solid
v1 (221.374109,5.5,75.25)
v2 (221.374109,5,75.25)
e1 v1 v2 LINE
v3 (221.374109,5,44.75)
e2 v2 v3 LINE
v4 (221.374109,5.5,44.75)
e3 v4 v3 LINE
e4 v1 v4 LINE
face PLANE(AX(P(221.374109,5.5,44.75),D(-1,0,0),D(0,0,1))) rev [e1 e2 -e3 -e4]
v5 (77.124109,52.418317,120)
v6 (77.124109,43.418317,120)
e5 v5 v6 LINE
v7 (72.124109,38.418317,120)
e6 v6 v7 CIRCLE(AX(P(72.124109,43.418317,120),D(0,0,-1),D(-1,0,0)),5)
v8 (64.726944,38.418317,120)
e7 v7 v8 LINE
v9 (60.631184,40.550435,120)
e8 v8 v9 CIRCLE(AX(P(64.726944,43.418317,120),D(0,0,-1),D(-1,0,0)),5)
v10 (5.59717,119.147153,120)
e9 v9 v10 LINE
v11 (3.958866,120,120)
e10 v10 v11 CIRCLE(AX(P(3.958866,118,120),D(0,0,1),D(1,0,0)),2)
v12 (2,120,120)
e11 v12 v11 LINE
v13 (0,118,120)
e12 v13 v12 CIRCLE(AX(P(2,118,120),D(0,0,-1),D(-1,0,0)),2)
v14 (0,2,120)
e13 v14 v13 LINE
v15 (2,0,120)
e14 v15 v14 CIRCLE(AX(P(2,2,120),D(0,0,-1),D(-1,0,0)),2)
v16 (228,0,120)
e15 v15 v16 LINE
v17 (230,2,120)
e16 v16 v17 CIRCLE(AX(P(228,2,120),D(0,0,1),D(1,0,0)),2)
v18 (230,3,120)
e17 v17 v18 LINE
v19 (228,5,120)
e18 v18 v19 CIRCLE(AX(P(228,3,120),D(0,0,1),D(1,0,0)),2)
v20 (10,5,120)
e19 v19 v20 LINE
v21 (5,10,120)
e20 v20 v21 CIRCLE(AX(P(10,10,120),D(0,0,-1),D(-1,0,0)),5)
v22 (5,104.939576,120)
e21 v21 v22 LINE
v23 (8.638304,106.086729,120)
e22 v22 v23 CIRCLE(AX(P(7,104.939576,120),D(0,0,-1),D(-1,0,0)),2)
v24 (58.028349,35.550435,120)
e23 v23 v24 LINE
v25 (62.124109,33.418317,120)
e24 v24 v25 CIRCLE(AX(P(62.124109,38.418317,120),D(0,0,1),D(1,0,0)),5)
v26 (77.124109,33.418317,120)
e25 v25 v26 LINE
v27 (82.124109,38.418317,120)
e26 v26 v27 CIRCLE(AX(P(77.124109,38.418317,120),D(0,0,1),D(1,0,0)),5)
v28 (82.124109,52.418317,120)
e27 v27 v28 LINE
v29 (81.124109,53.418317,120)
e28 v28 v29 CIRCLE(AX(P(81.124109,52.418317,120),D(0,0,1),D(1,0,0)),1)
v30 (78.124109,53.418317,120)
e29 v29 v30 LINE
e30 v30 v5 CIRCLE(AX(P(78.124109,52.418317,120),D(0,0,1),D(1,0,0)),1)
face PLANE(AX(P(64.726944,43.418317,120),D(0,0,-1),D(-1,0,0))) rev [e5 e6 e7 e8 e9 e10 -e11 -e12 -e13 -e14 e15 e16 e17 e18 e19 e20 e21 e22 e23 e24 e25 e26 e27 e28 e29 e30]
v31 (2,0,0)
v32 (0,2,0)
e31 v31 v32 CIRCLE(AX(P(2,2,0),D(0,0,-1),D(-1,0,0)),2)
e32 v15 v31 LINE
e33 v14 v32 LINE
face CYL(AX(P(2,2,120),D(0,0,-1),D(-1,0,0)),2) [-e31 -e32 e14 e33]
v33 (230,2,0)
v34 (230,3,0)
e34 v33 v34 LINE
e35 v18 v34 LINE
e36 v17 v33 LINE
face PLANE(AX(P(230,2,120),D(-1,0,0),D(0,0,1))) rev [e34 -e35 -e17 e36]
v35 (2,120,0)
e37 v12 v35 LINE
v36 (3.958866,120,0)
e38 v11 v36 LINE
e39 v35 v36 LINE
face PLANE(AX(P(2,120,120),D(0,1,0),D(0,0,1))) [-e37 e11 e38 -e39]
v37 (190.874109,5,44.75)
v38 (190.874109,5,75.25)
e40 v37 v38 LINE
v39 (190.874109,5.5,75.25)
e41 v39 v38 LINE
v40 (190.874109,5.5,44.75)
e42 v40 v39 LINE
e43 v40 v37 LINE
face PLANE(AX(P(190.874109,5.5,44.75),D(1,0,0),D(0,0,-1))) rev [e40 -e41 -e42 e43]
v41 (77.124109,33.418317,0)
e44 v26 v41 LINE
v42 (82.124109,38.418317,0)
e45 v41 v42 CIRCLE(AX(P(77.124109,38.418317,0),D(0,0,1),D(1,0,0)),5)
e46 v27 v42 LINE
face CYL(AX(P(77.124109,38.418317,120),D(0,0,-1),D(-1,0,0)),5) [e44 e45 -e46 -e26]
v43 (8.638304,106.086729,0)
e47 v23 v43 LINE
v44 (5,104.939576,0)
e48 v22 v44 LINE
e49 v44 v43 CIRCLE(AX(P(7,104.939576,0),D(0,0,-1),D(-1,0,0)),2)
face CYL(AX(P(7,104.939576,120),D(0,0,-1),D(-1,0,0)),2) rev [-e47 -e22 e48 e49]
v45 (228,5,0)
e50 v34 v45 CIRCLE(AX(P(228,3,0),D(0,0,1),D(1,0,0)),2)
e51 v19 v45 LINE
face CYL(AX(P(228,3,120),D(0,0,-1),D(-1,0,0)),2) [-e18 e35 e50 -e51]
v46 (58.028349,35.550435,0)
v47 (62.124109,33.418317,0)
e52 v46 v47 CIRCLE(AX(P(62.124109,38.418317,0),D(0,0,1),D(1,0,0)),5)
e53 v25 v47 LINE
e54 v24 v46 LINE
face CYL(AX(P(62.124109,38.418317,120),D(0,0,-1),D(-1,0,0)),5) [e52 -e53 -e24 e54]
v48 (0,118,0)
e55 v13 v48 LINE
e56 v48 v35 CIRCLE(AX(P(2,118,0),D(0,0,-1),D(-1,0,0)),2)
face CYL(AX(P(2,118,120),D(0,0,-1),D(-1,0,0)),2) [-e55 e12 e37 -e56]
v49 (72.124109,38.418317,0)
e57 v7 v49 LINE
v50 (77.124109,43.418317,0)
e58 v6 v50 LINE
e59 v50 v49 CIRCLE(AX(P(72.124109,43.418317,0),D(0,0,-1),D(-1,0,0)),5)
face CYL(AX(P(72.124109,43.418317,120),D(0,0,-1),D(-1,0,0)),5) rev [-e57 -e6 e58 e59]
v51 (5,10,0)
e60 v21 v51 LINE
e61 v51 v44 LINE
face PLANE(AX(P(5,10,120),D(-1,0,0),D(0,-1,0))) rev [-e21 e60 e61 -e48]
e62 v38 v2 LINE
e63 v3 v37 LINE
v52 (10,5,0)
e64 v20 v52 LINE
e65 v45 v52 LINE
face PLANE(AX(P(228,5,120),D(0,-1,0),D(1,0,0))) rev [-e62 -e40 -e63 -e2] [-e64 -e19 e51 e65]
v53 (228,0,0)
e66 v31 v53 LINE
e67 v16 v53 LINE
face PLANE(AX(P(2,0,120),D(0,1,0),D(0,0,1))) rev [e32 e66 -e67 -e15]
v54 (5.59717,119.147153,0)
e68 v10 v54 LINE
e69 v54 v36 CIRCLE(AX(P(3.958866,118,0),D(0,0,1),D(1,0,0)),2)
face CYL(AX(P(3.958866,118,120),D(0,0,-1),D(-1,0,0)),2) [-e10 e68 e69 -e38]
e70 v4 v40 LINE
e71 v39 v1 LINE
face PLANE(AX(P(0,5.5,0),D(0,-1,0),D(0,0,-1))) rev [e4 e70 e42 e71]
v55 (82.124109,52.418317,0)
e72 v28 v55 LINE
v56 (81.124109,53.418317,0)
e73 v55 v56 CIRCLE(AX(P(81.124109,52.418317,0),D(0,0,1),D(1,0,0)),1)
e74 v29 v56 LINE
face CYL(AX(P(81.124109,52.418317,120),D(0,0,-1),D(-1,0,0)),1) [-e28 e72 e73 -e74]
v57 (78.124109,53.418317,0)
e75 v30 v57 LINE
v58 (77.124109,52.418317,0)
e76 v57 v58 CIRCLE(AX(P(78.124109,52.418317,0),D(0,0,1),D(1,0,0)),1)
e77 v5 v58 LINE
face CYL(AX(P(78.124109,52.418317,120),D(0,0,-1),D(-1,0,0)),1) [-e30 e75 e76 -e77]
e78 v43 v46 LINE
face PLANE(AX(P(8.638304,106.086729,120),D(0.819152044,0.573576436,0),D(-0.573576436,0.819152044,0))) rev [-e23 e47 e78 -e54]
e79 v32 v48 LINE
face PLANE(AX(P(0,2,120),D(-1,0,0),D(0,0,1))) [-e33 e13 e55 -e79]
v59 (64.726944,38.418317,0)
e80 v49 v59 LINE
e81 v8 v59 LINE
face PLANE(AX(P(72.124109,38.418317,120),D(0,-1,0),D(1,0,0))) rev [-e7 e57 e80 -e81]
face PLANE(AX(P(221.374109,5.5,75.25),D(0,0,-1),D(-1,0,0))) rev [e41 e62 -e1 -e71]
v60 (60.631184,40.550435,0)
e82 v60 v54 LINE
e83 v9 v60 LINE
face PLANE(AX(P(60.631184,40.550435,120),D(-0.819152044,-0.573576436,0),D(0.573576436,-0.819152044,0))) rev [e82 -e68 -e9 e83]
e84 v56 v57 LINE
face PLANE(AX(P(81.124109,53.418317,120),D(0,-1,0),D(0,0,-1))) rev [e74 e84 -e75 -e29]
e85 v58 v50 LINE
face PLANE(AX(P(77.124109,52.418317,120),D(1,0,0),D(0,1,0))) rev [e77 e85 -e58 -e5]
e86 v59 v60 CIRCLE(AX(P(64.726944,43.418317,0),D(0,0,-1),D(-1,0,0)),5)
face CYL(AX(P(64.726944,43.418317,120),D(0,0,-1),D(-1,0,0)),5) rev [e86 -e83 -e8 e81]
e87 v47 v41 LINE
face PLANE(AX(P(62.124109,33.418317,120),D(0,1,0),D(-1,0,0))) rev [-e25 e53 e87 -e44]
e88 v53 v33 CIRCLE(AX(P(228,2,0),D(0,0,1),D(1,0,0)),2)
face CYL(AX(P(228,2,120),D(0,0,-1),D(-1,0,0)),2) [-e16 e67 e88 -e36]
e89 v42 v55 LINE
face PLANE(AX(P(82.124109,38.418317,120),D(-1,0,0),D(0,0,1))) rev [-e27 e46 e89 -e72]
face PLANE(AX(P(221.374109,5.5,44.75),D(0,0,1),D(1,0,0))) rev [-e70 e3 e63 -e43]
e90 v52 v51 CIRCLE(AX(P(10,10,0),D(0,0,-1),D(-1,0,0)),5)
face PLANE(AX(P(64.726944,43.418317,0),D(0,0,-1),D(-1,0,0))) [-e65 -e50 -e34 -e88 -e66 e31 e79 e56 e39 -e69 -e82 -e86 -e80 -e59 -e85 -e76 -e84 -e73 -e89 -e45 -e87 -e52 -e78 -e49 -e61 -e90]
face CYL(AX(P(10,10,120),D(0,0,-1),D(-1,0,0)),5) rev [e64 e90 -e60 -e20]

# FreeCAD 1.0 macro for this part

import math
import FreeCAD as App
import Part
import Sketcher
from FreeCAD import Vector
Q = App.Units.Quantity


def add_polygon(sketch, points):
    """Adds a closed chain of lines whose ends are joined by coincident constraints."""
    first, n = sketch.GeometryCount, len(points)
    for a, b in zip(points, points[1:] + points[:1]):
        sketch.addGeometry(Part.LineSegment(App.Vector(*a, 0), App.Vector(*b, 0)), False)
    for i in range(n):
        sketch.addConstraint(Sketcher.Constraint("Coincident", first + i, 2, first + (i + 1) % n, 1))

doc = App.newDocument("Part")
body = doc.addObject("PartDesign::Body", "Body")

# Sketch on XY plane
sketch1 = doc.addObject("Sketcher::SketchObject", "Sketch")
body.addObject(sketch1)
sketch1.AttachmentSupport = (doc.XY_Plane, [""])
sketch1.MapMode = "FlatFace"
sketch1.addGeometry([
    Part.LineSegment(Vector(2, 0, 0), Vector(228, 0, 0)),  # 0
    Part.ArcOfCircle(Part.Circle(Vector(228, 2, 0), Vector(0, 0, 1), 2), math.radians(-90), math.radians(0)),  # 1
    Part.LineSegment(Vector(230, 2, 0), Vector(230, 3, 0)),  # 2
    Part.ArcOfCircle(Part.Circle(Vector(228, 3, 0), Vector(0, 0, 1), 2), math.radians(0), math.radians(90)),  # 3
    Part.LineSegment(Vector(228, 5, 0), Vector(10, 5, 0)),  # 4
    Part.ArcOfCircle(Part.Circle(Vector(10, 10, 0), Vector(0, 0, 1), 5), math.radians(180), math.radians(270)),  # 5
    Part.LineSegment(Vector(5, 10, 0), Vector(5, 104.9, 0)),  # 6
    Part.ArcOfCircle(Part.Circle(Vector(7, 104.9, 0), Vector(0, 0, 1), 2), math.radians(35), math.radians(180)),  # 7
    Part.LineSegment(Vector(8.6, 106.1, 0), Vector(58, 35.6, 0)),  # 8
    Part.ArcOfCircle(Part.Circle(Vector(62.1, 38.4, 0), Vector(0, 0, 1), 5), math.radians(-145), math.radians(-90)),  # 9
    Part.LineSegment(Vector(62.1, 33.4, 0), Vector(77.1, 33.4, 0)),  # 10
    Part.ArcOfCircle(Part.Circle(Vector(77.1, 38.4, 0), Vector(0, 0, 1), 5), math.radians(-90), math.radians(0)),  # 11
    Part.LineSegment(Vector(82.1, 38.4, 0), Vector(82.1, 52.4, 0)),  # 12
    Part.ArcOfCircle(Part.Circle(Vector(81.1, 52.4, 0), Vector(0, 0, 1), 1), math.radians(0), math.radians(90)),  # 13
    Part.LineSegment(Vector(81.1, 53.4, 0), Vector(78.1, 53.4, 0)),  # 14
    Part.ArcOfCircle(Part.Circle(Vector(78.1, 52.4, 0), Vector(0, 0, 1), 1), math.radians(90), math.radians(180)),  # 15
    Part.LineSegment(Vector(77.1, 52.4, 0), Vector(77.1, 43.4, 0)),  # 16
    Part.ArcOfCircle(Part.Circle(Vector(72.1, 43.4, 0), Vector(0, 0, 1), 5), math.radians(-90), math.radians(0)),  # 17
    Part.LineSegment(Vector(72.1, 38.4, 0), Vector(64.7, 38.4, 0)),  # 18
    Part.ArcOfCircle(Part.Circle(Vector(64.7, 43.4, 0), Vector(0, 0, 1), 5), math.radians(-145), math.radians(-90)),  # 19
    Part.LineSegment(Vector(60.6, 40.6, 0), Vector(5.6, 119.1, 0)),  # 20
    Part.ArcOfCircle(Part.Circle(Vector(4, 118, 0), Vector(0, 0, 1), 2), math.radians(35), math.radians(90)),  # 21
    Part.LineSegment(Vector(4, 120, 0), Vector(2, 120, 0)),  # 22
    Part.ArcOfCircle(Part.Circle(Vector(2, 118, 0), Vector(0, 0, 1), 2), math.radians(90), math.radians(180)),  # 23
    Part.LineSegment(Vector(0, 118, 0), Vector(0, 2, 0)),  # 24
    Part.ArcOfCircle(Part.Circle(Vector(2, 2, 0), Vector(0, 0, 1), 2), math.radians(-180), math.radians(-90)),  # 25
], False)
sketch1.addConstraint([
    Sketcher.Constraint("Tangent", 0, 2, 1, 1),
    Sketcher.Constraint("Tangent", 1, 2, 2, 1),
    Sketcher.Constraint("Tangent", 2, 2, 3, 1),
    Sketcher.Constraint("Tangent", 3, 2, 4, 1),
    Sketcher.Constraint("Tangent", 4, 2, 5, 2),
    Sketcher.Constraint("Tangent", 5, 1, 6, 1),
    Sketcher.Constraint("Tangent", 6, 2, 7, 2),
    Sketcher.Constraint("Tangent", 7, 1, 8, 1),
    Sketcher.Constraint("Tangent", 8, 2, 9, 1),
    Sketcher.Constraint("Tangent", 9, 2, 10, 1),
    Sketcher.Constraint("Tangent", 10, 2, 11, 1),
    Sketcher.Constraint("Tangent", 11, 2, 12, 1),
    Sketcher.Constraint("Tangent", 12, 2, 13, 1),
    Sketcher.Constraint("Tangent", 13, 2, 14, 1),
    Sketcher.Constraint("Tangent", 14, 2, 15, 1),
    Sketcher.Constraint("Tangent", 15, 2, 16, 1),
    Sketcher.Constraint("Tangent", 16, 2, 17, 2),
    Sketcher.Constraint("Tangent", 17, 1, 18, 1),
    Sketcher.Constraint("Tangent", 18, 2, 19, 2),
    Sketcher.Constraint("Tangent", 19, 1, 20, 1),
    Sketcher.Constraint("Tangent", 20, 2, 21, 1),
    Sketcher.Constraint("Tangent", 21, 2, 22, 1),
    Sketcher.Constraint("Tangent", 22, 2, 23, 1),
    Sketcher.Constraint("Tangent", 23, 2, 24, 1),
    Sketcher.Constraint("Tangent", 24, 2, 25, 1),
    Sketcher.Constraint("Tangent", 25, 2, 0, 1),
    Sketcher.Constraint("Horizontal", 0),
    Sketcher.Constraint("Vertical", 2),
    Sketcher.Constraint("Horizontal", 4),
    Sketcher.Constraint("Vertical", 6),
    Sketcher.Constraint("Horizontal", 10),
    Sketcher.Constraint("Vertical", 12),
    Sketcher.Constraint("Horizontal", 14),
    Sketcher.Constraint("Vertical", 16),
    Sketcher.Constraint("Horizontal", 18),
    Sketcher.Constraint("Horizontal", 22),
    Sketcher.Constraint("Vertical", 24),
    Sketcher.Constraint("Equal", 1, 3),
    Sketcher.Constraint("Equal", 3, 7),
    Sketcher.Constraint("Equal", 5, 9),
    Sketcher.Constraint("Equal", 9, 11),
    Sketcher.Constraint("Equal", 13, 15),
    Sketcher.Constraint("Equal", 11, 17),
    Sketcher.Constraint("Equal", 17, 19),
    Sketcher.Constraint("Equal", 7, 21),
    Sketcher.Constraint("Equal", 21, 23),
    Sketcher.Constraint("Equal", 23, 25),
    Sketcher.Constraint("PointOnObject", 0, 2, -1),
    Sketcher.Constraint("PointOnObject", 23, 2, -2),
    Sketcher.Constraint("Parallel", 8, 20),
    Sketcher.Constraint("Horizontal", 11, 2, 17, 1),
    Sketcher.Constraint("Vertical", 10, 2, 15, 2),
    Sketcher.Constraint("Radius", 1, 2.0),
    Sketcher.Constraint("Radius", 5, 5.0),
    Sketcher.Constraint("Radius", 13, 1.0),
    Sketcher.Constraint("DistanceX", 0, 1, 0, 2, 226.0),
    Sketcher.Constraint("DistanceX", 4, 2, 4, 1, 218.0),
    Sketcher.Constraint("DistanceX", 10, 1, 10, 2, 15.0),
    Sketcher.Constraint("DistanceY", 2, 1, 2, 2, 1.0),
    Sketcher.Constraint("DistanceY", 12, 1, 12, 2, 14.0),
    Sketcher.Constraint("DistanceY", 24, 2, 24, 1, 116.0),
    Sketcher.Constraint("Angle", 8, Q("-55 deg")),
    Sketcher.Constraint("DistanceX", 18, 2, 18, 1, 7.397165),
    Sketcher.Constraint("DistanceX", 22, 2, 22, 1, 1.958866),
    Sketcher.Constraint("DistanceX", -1, 1, 9, 3, 62.124109),
])
pad1 = doc.addObject("PartDesign::Pad", "Pad")
body.addObject(pad1)
pad1.Profile = sketch1
pad1.Length = 120

# Sketch on XZ plane
sketch2 = doc.addObject("Sketcher::SketchObject", "Sketch001")
body.addObject(sketch2)
sketch2.AttachmentSupport = (doc.XZ_Plane, [""])
sketch2.MapMode = "FlatFace"
add_polygon(sketch2, [(190, 45), (190, 75), (220, 75), (220, 45)])  # lines 0-3
sketch2.addConstraint([
    Sketcher.Constraint("Vertical", 0),
    Sketcher.Constraint("Horizontal", 1),
    Sketcher.Constraint("Vertical", 2),
    Sketcher.Constraint("Horizontal", 3),
    Sketcher.Constraint("Equal", 3, 0),
    Sketcher.Constraint("DistanceX", 1, 1, 1, 2, 30.0),
    Sketcher.Constraint("DistanceX", -1, 1, 0, 2, 190.0),
    Sketcher.Constraint("DistanceY", -1, 1, 0, 2, 75.0),
])
pad2 = doc.addObject("PartDesign::Pad", "Pad001")
body.addObject(pad2)
pad2.Profile = sketch2
pad2.Length = 3
pad2.Reversed = True

# Sketch on XZ plane
sketch3 = doc.addObject("Sketcher::SketchObject", "Sketch002")
body.addObject(sketch3)
sketch3.AttachmentSupport = (doc.XZ_Plane, [""])
sketch3.MapMode = "FlatFace"
add_polygon(sketch3, [(191, 45), (191, 75), (221, 75), (221, 45)])  # lines 0-3
sketch3.addConstraint([
    Sketcher.Constraint("Vertical", 0),
    Sketcher.Constraint("Horizontal", 1),
    Sketcher.Constraint("Vertical", 2),
    Sketcher.Constraint("Horizontal", 3),
    Sketcher.Constraint("Equal", 3, 0),
    Sketcher.Constraint("DistanceX", 1, 1, 1, 2, 30.5),
    Sketcher.Constraint("DistanceY", -1, 1, 0, 2, 75.25),
    Sketcher.Constraint("DistanceX", -1, 1, 0, 2, 190.874109),
])
pad3 = doc.addObject("PartDesign::Pad", "Pad002")
body.addObject(pad3)
pad3.Profile = sketch3
pad3.Length = 5.5
pad3.Reversed = True

doc.recompute()
